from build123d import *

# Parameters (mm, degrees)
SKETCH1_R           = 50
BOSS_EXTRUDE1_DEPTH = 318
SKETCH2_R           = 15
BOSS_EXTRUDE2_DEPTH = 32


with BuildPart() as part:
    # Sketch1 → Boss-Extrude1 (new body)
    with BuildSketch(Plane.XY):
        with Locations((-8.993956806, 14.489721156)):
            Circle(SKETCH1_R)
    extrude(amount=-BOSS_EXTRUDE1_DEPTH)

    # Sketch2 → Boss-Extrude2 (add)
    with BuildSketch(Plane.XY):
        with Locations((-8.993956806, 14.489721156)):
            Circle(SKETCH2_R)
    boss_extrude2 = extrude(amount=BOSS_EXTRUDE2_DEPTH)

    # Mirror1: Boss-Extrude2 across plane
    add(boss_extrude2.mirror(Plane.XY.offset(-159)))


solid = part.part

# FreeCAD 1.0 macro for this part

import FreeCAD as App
import Part
import Sketcher
from FreeCAD import Vector
Q = App.Units.Quantity

doc = App.newDocument("Part")
body = doc.addObject("PartDesign::Body", "Body")

sketch1 = body.newObject("Sketcher::SketchObject", "Sketch")
sketch1.AttachmentSupport = (doc.getObject("XY_Plane"), [""])
sketch1.MapMode = "FlatFace"
sketch1.addGeometry(Part.Circle(Vector(-9, 14, 0), Vector(0, 0, 1), 50), False)
sketch1.addConstraint([
    Sketcher.Constraint("Diameter", 0, Q("100 mm")),
    Sketcher.Constraint("DistanceY", -1, 1, 0, 3, Q("14.489721 mm")),
    Sketcher.Constraint("DistanceX", 0, 3, -1, 1, Q("8.993957 mm")),
])
pad1 = body.newObject("PartDesign::Pad", "Pad")
pad1.Profile = sketch1
pad1.Length = 318
pad1.Reversed = True

sketch2 = body.newObject("Sketcher::SketchObject", "Sketch001")
sketch2.AttachmentSupport = (doc.getObject("XY_Plane"), [""])
sketch2.MapMode = "FlatFace"
sketch2.addGeometry(Part.Circle(Vector(-9, 14, 0), Vector(0, 0, 1), 15), False)
sketch2.addConstraint([
    Sketcher.Constraint("Diameter", 0, Q("30 mm")),
    Sketcher.Constraint("DistanceY", -1, 1, 0, 3, Q("14.489721 mm")),
    Sketcher.Constraint("DistanceX", 0, 3, -1, 1, Q("8.993957 mm")),
])
pad2 = body.newObject("PartDesign::Pad", "Pad001")
pad2.Profile = sketch2
pad2.Length = 32
doc.recompute()

datumplane = body.newObject("PartDesign::Plane", "DatumPlane")
datumplane.AttachmentSupport = (doc.getObject("XY_Plane"), [""])
datumplane.MapMode = "FlatFace"
datumplane.AttachmentOffset = App.Placement(Vector(0, 0, -159), App.Rotation())
mirrored = body.newObject("PartDesign::Mirrored", "Mirrored")
mirrored.Originals = [pad2]
mirrored.MirrorPlane = (datumplane, [""])
body.Tip = mirrored

doc.recompute()
